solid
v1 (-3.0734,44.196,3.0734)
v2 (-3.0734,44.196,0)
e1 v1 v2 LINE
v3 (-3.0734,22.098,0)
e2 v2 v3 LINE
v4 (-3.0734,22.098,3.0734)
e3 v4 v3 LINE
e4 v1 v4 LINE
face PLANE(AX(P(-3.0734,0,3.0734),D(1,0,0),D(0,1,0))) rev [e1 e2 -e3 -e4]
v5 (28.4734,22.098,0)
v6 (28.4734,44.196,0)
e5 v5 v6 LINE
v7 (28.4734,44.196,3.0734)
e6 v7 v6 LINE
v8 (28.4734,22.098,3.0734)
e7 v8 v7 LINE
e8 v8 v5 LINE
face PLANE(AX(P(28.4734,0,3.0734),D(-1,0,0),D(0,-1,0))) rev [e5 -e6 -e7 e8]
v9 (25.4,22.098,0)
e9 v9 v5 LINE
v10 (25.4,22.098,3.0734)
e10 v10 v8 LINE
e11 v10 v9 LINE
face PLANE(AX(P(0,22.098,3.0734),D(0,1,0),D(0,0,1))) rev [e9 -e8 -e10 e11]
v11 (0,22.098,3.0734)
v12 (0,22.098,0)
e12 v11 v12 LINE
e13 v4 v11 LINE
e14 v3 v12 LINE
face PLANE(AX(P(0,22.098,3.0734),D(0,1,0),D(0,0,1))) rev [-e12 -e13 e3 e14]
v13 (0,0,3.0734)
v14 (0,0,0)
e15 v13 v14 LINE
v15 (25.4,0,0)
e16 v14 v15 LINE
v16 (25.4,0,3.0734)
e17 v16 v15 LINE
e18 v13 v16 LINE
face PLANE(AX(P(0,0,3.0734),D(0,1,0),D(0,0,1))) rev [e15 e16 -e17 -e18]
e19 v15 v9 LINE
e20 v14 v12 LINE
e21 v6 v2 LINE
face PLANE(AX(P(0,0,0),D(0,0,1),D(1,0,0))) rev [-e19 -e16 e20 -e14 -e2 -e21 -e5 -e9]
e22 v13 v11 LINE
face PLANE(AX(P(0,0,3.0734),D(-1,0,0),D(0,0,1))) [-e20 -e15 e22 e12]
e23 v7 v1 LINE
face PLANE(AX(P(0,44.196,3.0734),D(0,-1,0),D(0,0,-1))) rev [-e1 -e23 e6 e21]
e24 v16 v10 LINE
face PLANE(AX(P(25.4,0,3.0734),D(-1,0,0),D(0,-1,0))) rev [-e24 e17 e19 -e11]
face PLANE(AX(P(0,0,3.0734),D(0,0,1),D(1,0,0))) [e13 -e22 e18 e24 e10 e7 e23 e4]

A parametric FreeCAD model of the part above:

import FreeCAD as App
import Part
import Sketcher

V = App.Vector
Q = App.Units.Quantity

doc = App.newDocument("Part")
body = doc.addObject("PartDesign::Body", "Body")

# Sketch on XY plane
sketch1 = body.newObject("Sketcher::SketchObject", "Sketch")
sketch1.AttachmentSupport = (doc.getObject("XY_Plane"), [""])
sketch1.MapMode = "FlatFace"
sketch1.addGeometry([
    Part.LineSegment(V(-3.0734, 44.196, 0), V(-3.0734, 22.098, 0)),  # 0
    Part.LineSegment(V(-3.0734, 22.098, 0), V(0, 22.098, 0)),  # 1
    Part.LineSegment(V(0, 22.098, 0), V(0, 0, 0)),  # 2
    Part.LineSegment(V(0, 0, 0), V(25.4, 0, 0)),  # 3
    Part.LineSegment(V(25.4, 0, 0), V(25.4, 22.098, 0)),  # 4
    Part.LineSegment(V(25.4, 22.098, 0), V(28.4734, 22.098, 0)),  # 5
    Part.LineSegment(V(28.4734, 22.098, 0), V(28.4734, 44.196, 0)),  # 6
    Part.LineSegment(V(28.4734, 44.196, 0), V(-3.0734, 44.196, 0)),  # 7
], False)
sketch1.addConstraint([
    Sketcher.Constraint("Coincident", 0, 2, 1, 1),
    Sketcher.Constraint("Coincident", 1, 2, 2, 1),
    Sketcher.Constraint("Coincident", 2, 2, 3, 1),
    Sketcher.Constraint("Coincident", 3, 2, 4, 1),
    Sketcher.Constraint("Coincident", 4, 2, 5, 1),
    Sketcher.Constraint("Coincident", 5, 2, 6, 1),
    Sketcher.Constraint("Coincident", 6, 2, 7, 1),
    Sketcher.Constraint("Coincident", 7, 2, 0, 1),
    Sketcher.Constraint("Vertical", 0),
    Sketcher.Constraint("Horizontal", 1),
    Sketcher.Constraint("Vertical", 2),
    Sketcher.Constraint("Horizontal", 3),
    Sketcher.Constraint("Vertical", 4),
    Sketcher.Constraint("Horizontal", 5),
    Sketcher.Constraint("Vertical", 6),
    Sketcher.Constraint("Horizontal", 7),
    Sketcher.Constraint("Coincident", 2, 2, -1, 1),
    Sketcher.Constraint("Horizontal", 1, 2, 4, 2),
    Sketcher.Constraint("Equal", 1, 5),
    Sketcher.Constraint("Equal", 0, 2),
    Sketcher.Constraint("DistanceX", 3, 1, 3, 2, Q("1 in")),
    Sketcher.Constraint("DistanceY", 0, 2, 0, 1, Q("0.87 in")),
    Sketcher.Constraint("DistanceX", 1, 1, 1, 2, Q("0.121 in")),
])
pad1 = body.newObject("PartDesign::Pad", "Pad")
pad1.Profile = sketch1
pad1.Length = Q("0.121 in")

doc.recompute()
